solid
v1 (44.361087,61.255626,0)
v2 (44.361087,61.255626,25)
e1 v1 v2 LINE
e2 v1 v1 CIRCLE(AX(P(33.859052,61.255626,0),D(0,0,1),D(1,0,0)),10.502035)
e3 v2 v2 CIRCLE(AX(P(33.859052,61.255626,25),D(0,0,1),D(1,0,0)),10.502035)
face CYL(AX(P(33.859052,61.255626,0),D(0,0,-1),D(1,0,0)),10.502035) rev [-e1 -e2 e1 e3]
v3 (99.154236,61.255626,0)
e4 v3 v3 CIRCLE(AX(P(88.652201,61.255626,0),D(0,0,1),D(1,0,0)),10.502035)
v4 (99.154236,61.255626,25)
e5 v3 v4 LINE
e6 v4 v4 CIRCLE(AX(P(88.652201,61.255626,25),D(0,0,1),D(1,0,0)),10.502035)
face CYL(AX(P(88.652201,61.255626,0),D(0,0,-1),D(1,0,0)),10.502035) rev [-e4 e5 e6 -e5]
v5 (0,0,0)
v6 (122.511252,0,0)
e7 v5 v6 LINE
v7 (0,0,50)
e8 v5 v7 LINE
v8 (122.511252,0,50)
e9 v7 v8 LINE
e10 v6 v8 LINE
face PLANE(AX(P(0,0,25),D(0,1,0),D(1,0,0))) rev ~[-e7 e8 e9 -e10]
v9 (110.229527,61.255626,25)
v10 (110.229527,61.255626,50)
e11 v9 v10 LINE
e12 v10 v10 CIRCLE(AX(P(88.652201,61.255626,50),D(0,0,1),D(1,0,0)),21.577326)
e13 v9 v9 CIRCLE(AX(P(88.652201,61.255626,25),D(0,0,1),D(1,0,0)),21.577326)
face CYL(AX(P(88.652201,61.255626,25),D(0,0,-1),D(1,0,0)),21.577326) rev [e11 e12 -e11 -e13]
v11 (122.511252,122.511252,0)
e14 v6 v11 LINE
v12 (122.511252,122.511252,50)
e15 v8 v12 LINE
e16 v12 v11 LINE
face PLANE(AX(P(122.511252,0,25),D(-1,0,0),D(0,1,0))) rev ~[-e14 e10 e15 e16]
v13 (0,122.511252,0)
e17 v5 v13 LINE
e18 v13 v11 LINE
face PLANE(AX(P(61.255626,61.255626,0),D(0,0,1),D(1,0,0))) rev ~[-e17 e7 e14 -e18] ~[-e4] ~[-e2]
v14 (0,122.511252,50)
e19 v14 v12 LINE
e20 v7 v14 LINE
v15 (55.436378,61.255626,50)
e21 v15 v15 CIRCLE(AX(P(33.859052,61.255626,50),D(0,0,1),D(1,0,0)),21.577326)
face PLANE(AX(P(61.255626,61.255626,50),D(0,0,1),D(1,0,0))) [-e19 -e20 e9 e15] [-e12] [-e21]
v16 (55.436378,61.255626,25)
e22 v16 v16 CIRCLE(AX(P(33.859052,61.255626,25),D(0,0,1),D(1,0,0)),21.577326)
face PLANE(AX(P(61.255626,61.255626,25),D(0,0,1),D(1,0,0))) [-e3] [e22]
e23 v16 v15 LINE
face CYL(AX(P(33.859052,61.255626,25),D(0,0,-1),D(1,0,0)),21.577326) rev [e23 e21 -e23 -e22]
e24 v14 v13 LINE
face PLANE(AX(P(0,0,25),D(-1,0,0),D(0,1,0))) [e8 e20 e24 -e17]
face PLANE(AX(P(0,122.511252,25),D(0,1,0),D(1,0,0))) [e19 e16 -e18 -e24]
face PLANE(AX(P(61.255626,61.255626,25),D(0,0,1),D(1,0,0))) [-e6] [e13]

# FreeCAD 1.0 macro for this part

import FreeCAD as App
import Part
import Sketcher
from FreeCAD import Vector
Q = App.Units.Quantity

doc = App.newDocument("Part")
params = doc.addObject("Spreadsheet::Sheet", "Params")
for row, (alias, value) in enumerate([
    ("pad1_length", "25 mm"),
    ("pad2_length", "25 mm"),
], start=1):
    params.set(f"A{row}", alias)
    params.set(f"B{row}", "=" + value)
    params.setAlias(f"B{row}", alias)

body = doc.addObject("PartDesign::Body", "Body")

# Sketch on XY plane
sketch1 = doc.addObject("Sketcher::SketchObject", "Sketch")
body.addObject(sketch1)
sketch1.AttachmentSupport = (doc.XY_Plane, [""])
sketch1.MapMode = "FlatFace"
sketch1.addGeometry([
    Part.LineSegment(Vector(0, 123, 0), Vector(0, 0, 0)),  # 0
    Part.LineSegment(Vector(0, 0, 0), Vector(123, 0, 0)),  # 1
    Part.LineSegment(Vector(123, 0, 0), Vector(123, 123, 0)),  # 2
    Part.LineSegment(Vector(123, 123, 0), Vector(0, 123, 0)),  # 3
    Part.Circle(Vector(34, 61, 0), Vector(0, 0, 1), 11),  # 4
    Part.Circle(Vector(89, 61, 0), Vector(0, 0, 1), 11),  # 5
], False)
sketch1.addConstraint([
    Sketcher.Constraint("Coincident", 0, 2, 1, 1),
    Sketcher.Constraint("Coincident", 1, 2, 2, 1),
    Sketcher.Constraint("Coincident", 2, 2, 3, 1),
    Sketcher.Constraint("Coincident", 3, 2, 0, 1),
    Sketcher.Constraint("Vertical", 0),
    Sketcher.Constraint("Horizontal", 1),
    Sketcher.Constraint("Vertical", 2),
    Sketcher.Constraint("Horizontal", 3),
    Sketcher.Constraint("Coincident", 0, 2, -1, 1),
    Sketcher.Constraint("Equal", 4, 5),
    Sketcher.Constraint("Horizontal", 4, 3, 5, 3),
    Sketcher.Constraint("Equal", 3, 0),
    Sketcher.Constraint("Diameter", 4, Q("21.00407 mm")),
    Sketcher.Constraint("DistanceX", -1, 1, 5, 3, Q("88.652201 mm")),
    Sketcher.Constraint("DistanceX", 4, 3, 1, 2, Q("88.6522 mm")),
    Sketcher.Constraint("DistanceX", 1, 1, 1, 2, Q("122.511253 mm")),
    Sketcher.Constraint("DistanceY", -1, 1, 4, 3, Q("61.255626 mm")),
])
pad1 = doc.addObject("PartDesign::Pad", "Pad")
body.addObject(pad1)
pad1.Profile = sketch1
pad1.setExpression("Length", "Params.pad1_length")

# Sketch on XY plane
sketch2 = doc.addObject("Sketcher::SketchObject", "Sketch001")
body.addObject(sketch2)
sketch2.AttachmentSupport = (doc.XY_Plane, [""])
sketch2.MapMode = "FlatFace"
sketch2.AttachmentOffset = App.Placement(Vector(0, 0, 25), App.Rotation())
sketch2.addGeometry([
    Part.LineSegment(Vector(0, 123, 0), Vector(0, 0, 0)),  # 0
    Part.LineSegment(Vector(0, 0, 0), Vector(123, 0, 0)),  # 1
    Part.LineSegment(Vector(123, 0, 0), Vector(123, 123, 0)),  # 2
    Part.LineSegment(Vector(123, 123, 0), Vector(0, 123, 0)),  # 3
    Part.Circle(Vector(34, 61, 0), Vector(0, 0, 1), 22),  # 4
    Part.Circle(Vector(89, 61, 0), Vector(0, 0, 1), 22),  # 5
], False)
sketch2.addConstraint([
    Sketcher.Constraint("Coincident", 0, 2, 1, 1),
    Sketcher.Constraint("Coincident", 1, 2, 2, 1),
    Sketcher.Constraint("Coincident", 2, 2, 3, 1),
    Sketcher.Constraint("Coincident", 3, 2, 0, 1),
    Sketcher.Constraint("Vertical", 0),
    Sketcher.Constraint("Horizontal", 1),
    Sketcher.Constraint("Vertical", 2),
    Sketcher.Constraint("Horizontal", 3),
    Sketcher.Constraint("Coincident", 0, 2, -1, 1),
    Sketcher.Constraint("Equal", 4, 5),
    Sketcher.Constraint("Horizontal", 4, 3, 5, 3),
    Sketcher.Constraint("Equal", 3, 0),
    Sketcher.Constraint("Diameter", 4, Q("43.154652 mm")),
    Sketcher.Constraint("DistanceX", -1, 1, 5, 3, Q("88.652201 mm")),
    Sketcher.Constraint("DistanceX", 4, 3, 1, 2, Q("88.6522 mm")),
    Sketcher.Constraint("DistanceX", 1, 1, 1, 2, Q("122.511253 mm")),
    Sketcher.Constraint("DistanceY", -1, 1, 4, 3, Q("61.255626 mm")),
])
pad2 = doc.addObject("PartDesign::Pad", "Pad001")
body.addObject(pad2)
pad2.Profile = sketch2
pad2.setExpression("Length", "Params.pad2_length")

doc.recompute()
